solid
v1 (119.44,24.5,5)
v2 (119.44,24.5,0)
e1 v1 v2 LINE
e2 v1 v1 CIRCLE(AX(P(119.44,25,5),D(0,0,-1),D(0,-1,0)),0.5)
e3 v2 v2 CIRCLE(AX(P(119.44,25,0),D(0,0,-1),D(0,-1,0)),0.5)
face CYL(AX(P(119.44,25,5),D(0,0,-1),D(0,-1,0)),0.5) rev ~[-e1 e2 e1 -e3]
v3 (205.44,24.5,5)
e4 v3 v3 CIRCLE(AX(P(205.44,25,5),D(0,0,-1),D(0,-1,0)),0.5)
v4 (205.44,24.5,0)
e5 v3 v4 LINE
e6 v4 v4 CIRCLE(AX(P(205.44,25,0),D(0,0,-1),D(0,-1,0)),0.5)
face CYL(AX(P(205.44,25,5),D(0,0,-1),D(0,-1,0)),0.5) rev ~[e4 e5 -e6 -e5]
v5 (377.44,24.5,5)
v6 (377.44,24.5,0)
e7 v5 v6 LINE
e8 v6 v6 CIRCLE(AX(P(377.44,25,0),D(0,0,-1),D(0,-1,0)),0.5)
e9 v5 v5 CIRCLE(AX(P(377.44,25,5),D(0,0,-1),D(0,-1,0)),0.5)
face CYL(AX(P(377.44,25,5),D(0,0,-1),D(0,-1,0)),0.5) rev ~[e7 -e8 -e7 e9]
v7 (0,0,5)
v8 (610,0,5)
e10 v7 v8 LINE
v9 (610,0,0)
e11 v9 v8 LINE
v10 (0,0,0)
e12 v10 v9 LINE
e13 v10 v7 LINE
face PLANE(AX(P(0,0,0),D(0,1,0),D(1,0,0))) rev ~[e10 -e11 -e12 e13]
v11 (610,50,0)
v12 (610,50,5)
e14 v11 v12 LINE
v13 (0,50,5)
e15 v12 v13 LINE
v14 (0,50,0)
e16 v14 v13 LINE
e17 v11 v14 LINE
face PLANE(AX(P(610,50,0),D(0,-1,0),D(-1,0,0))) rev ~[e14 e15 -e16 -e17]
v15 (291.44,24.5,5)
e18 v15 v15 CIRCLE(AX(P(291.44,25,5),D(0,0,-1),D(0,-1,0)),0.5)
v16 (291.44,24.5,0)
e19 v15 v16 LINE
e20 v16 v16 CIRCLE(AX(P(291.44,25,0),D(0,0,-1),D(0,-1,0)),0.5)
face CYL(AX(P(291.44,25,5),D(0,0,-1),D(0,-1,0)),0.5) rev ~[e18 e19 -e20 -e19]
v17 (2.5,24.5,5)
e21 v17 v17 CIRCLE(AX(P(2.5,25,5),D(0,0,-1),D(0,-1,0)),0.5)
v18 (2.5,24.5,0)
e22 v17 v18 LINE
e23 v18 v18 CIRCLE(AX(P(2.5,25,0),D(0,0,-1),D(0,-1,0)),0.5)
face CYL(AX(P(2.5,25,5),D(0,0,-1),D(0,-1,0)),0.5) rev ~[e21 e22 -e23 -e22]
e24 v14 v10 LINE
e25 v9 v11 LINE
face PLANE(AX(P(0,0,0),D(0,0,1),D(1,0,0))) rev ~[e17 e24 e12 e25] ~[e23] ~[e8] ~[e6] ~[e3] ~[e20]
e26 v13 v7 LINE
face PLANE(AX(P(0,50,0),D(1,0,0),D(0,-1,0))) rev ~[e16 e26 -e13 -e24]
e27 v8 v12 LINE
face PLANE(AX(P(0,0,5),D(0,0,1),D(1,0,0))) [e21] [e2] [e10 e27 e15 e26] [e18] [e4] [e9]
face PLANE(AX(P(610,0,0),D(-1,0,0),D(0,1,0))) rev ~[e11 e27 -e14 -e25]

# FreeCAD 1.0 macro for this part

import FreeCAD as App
import Part
import Sketcher


def add_polygon(sketch, points):
    """Adds a closed chain of lines whose ends are joined by coincident constraints."""
    first, n = sketch.GeometryCount, len(points)
    for a, b in zip(points, points[1:] + points[:1]):
        sketch.addGeometry(Part.LineSegment(App.Vector(*a, 0), App.Vector(*b, 0)), False)
    for i in range(n):
        sketch.addConstraint(Sketcher.Constraint("Coincident", first + i, 2, first + (i + 1) % n, 1))

doc = App.newDocument("Part")
body = doc.addObject("PartDesign::Body", "Body")

# Sketch on XY plane
sketch1 = body.newObject("Sketcher::SketchObject", "Sketch")
sketch1.AttachmentSupport = (doc.getObject("XY_Plane"), [""])
sketch1.MapMode = "FlatFace"
add_polygon(sketch1, [(0, 50), (0, 0), (610, 0), (610, 50)])  # lines 0-3
sketch1.addConstraint(Sketcher.Constraint("Vertical", 0))
sketch1.addConstraint(Sketcher.Constraint("Horizontal", 1))
sketch1.addConstraint(Sketcher.Constraint("Vertical", 2))
sketch1.addConstraint(Sketcher.Constraint("Horizontal", 3))
sketch1.addConstraint(Sketcher.Constraint("Coincident", 0, 2, -1, 1))
sketch1.addConstraint(Sketcher.Constraint("DistanceX", 1, 1, 1, 2, 610.0))
sketch1.addConstraint(Sketcher.Constraint("DistanceY", 0, 2, 0, 1, 50.0))
pad1 = body.newObject("PartDesign::Pad", "Pad")
pad1.Profile = sketch1
pad1.Length = 5

# Sketch on XY plane
sketch2 = body.newObject("Sketcher::SketchObject", "Sketch001")
sketch2.AttachmentSupport = (doc.getObject("XY_Plane"), [""])
sketch2.MapMode = "FlatFace"
sketch2.AttachmentOffset = App.Placement(App.Vector(0, 0, 5), App.Rotation())
sketch2.addGeometry(Part.Circle(App.Vector(2.5, 25, 0), App.Vector(0, 0, 1), 0.5), False)
sketch2.addGeometry(Part.Circle(App.Vector(119.4, 25, 0), App.Vector(0, 0, 1), 0.5), False)
sketch2.addGeometry(Part.Circle(App.Vector(205.4, 25, 0), App.Vector(0, 0, 1), 0.5), False)
sketch2.addGeometry(Part.Circle(App.Vector(291.4, 25, 0), App.Vector(0, 0, 1), 0.5), False)
sketch2.addGeometry(Part.Circle(App.Vector(377.4, 25, 0), App.Vector(0, 0, 1), 0.5), False)
sketch2.addConstraint(Sketcher.Constraint("Equal", 0, 1))
sketch2.addConstraint(Sketcher.Constraint("Equal", 1, 2))
sketch2.addConstraint(Sketcher.Constraint("Equal", 2, 3))
sketch2.addConstraint(Sketcher.Constraint("Equal", 3, 4))
sketch2.addConstraint(Sketcher.Constraint("Horizontal", 0, 3, 1, 3))
sketch2.addConstraint(Sketcher.Constraint("Horizontal", 1, 3, 2, 3))
sketch2.addConstraint(Sketcher.Constraint("Horizontal", 2, 3, 3, 3))
sketch2.addConstraint(Sketcher.Constraint("Horizontal", 3, 3, 4, 3))
sketch2.addConstraint(Sketcher.Constraint("Diameter", 0, 1.0))
sketch2.addConstraint(Sketcher.Constraint("DistanceY", -1, 1, 0, 3, 25.0))
sketch2.addConstraint(Sketcher.Constraint("DistanceX", 1, 3, 2, 3, 86.0))
sketch2.addConstraint(Sketcher.Constraint("DistanceX", 2, 3, 3, 3, 86.0))
sketch2.addConstraint(Sketcher.Constraint("DistanceX", 3, 3, 4, 3, 86.0))
sketch2.addConstraint(Sketcher.Constraint("DistanceX", -1, 1, 0, 3, 2.5))
sketch2.addConstraint(Sketcher.Constraint("DistanceX", -1, 1, 1, 3, 119.44))
doc.recompute()
hole = body.newObject("PartDesign::Hole", "Hole")
hole.Profile = sketch2
hole.ThreadType = "None"
hole.Diameter = 1
hole.DepthType = "ThroughAll"

doc.recompute()
